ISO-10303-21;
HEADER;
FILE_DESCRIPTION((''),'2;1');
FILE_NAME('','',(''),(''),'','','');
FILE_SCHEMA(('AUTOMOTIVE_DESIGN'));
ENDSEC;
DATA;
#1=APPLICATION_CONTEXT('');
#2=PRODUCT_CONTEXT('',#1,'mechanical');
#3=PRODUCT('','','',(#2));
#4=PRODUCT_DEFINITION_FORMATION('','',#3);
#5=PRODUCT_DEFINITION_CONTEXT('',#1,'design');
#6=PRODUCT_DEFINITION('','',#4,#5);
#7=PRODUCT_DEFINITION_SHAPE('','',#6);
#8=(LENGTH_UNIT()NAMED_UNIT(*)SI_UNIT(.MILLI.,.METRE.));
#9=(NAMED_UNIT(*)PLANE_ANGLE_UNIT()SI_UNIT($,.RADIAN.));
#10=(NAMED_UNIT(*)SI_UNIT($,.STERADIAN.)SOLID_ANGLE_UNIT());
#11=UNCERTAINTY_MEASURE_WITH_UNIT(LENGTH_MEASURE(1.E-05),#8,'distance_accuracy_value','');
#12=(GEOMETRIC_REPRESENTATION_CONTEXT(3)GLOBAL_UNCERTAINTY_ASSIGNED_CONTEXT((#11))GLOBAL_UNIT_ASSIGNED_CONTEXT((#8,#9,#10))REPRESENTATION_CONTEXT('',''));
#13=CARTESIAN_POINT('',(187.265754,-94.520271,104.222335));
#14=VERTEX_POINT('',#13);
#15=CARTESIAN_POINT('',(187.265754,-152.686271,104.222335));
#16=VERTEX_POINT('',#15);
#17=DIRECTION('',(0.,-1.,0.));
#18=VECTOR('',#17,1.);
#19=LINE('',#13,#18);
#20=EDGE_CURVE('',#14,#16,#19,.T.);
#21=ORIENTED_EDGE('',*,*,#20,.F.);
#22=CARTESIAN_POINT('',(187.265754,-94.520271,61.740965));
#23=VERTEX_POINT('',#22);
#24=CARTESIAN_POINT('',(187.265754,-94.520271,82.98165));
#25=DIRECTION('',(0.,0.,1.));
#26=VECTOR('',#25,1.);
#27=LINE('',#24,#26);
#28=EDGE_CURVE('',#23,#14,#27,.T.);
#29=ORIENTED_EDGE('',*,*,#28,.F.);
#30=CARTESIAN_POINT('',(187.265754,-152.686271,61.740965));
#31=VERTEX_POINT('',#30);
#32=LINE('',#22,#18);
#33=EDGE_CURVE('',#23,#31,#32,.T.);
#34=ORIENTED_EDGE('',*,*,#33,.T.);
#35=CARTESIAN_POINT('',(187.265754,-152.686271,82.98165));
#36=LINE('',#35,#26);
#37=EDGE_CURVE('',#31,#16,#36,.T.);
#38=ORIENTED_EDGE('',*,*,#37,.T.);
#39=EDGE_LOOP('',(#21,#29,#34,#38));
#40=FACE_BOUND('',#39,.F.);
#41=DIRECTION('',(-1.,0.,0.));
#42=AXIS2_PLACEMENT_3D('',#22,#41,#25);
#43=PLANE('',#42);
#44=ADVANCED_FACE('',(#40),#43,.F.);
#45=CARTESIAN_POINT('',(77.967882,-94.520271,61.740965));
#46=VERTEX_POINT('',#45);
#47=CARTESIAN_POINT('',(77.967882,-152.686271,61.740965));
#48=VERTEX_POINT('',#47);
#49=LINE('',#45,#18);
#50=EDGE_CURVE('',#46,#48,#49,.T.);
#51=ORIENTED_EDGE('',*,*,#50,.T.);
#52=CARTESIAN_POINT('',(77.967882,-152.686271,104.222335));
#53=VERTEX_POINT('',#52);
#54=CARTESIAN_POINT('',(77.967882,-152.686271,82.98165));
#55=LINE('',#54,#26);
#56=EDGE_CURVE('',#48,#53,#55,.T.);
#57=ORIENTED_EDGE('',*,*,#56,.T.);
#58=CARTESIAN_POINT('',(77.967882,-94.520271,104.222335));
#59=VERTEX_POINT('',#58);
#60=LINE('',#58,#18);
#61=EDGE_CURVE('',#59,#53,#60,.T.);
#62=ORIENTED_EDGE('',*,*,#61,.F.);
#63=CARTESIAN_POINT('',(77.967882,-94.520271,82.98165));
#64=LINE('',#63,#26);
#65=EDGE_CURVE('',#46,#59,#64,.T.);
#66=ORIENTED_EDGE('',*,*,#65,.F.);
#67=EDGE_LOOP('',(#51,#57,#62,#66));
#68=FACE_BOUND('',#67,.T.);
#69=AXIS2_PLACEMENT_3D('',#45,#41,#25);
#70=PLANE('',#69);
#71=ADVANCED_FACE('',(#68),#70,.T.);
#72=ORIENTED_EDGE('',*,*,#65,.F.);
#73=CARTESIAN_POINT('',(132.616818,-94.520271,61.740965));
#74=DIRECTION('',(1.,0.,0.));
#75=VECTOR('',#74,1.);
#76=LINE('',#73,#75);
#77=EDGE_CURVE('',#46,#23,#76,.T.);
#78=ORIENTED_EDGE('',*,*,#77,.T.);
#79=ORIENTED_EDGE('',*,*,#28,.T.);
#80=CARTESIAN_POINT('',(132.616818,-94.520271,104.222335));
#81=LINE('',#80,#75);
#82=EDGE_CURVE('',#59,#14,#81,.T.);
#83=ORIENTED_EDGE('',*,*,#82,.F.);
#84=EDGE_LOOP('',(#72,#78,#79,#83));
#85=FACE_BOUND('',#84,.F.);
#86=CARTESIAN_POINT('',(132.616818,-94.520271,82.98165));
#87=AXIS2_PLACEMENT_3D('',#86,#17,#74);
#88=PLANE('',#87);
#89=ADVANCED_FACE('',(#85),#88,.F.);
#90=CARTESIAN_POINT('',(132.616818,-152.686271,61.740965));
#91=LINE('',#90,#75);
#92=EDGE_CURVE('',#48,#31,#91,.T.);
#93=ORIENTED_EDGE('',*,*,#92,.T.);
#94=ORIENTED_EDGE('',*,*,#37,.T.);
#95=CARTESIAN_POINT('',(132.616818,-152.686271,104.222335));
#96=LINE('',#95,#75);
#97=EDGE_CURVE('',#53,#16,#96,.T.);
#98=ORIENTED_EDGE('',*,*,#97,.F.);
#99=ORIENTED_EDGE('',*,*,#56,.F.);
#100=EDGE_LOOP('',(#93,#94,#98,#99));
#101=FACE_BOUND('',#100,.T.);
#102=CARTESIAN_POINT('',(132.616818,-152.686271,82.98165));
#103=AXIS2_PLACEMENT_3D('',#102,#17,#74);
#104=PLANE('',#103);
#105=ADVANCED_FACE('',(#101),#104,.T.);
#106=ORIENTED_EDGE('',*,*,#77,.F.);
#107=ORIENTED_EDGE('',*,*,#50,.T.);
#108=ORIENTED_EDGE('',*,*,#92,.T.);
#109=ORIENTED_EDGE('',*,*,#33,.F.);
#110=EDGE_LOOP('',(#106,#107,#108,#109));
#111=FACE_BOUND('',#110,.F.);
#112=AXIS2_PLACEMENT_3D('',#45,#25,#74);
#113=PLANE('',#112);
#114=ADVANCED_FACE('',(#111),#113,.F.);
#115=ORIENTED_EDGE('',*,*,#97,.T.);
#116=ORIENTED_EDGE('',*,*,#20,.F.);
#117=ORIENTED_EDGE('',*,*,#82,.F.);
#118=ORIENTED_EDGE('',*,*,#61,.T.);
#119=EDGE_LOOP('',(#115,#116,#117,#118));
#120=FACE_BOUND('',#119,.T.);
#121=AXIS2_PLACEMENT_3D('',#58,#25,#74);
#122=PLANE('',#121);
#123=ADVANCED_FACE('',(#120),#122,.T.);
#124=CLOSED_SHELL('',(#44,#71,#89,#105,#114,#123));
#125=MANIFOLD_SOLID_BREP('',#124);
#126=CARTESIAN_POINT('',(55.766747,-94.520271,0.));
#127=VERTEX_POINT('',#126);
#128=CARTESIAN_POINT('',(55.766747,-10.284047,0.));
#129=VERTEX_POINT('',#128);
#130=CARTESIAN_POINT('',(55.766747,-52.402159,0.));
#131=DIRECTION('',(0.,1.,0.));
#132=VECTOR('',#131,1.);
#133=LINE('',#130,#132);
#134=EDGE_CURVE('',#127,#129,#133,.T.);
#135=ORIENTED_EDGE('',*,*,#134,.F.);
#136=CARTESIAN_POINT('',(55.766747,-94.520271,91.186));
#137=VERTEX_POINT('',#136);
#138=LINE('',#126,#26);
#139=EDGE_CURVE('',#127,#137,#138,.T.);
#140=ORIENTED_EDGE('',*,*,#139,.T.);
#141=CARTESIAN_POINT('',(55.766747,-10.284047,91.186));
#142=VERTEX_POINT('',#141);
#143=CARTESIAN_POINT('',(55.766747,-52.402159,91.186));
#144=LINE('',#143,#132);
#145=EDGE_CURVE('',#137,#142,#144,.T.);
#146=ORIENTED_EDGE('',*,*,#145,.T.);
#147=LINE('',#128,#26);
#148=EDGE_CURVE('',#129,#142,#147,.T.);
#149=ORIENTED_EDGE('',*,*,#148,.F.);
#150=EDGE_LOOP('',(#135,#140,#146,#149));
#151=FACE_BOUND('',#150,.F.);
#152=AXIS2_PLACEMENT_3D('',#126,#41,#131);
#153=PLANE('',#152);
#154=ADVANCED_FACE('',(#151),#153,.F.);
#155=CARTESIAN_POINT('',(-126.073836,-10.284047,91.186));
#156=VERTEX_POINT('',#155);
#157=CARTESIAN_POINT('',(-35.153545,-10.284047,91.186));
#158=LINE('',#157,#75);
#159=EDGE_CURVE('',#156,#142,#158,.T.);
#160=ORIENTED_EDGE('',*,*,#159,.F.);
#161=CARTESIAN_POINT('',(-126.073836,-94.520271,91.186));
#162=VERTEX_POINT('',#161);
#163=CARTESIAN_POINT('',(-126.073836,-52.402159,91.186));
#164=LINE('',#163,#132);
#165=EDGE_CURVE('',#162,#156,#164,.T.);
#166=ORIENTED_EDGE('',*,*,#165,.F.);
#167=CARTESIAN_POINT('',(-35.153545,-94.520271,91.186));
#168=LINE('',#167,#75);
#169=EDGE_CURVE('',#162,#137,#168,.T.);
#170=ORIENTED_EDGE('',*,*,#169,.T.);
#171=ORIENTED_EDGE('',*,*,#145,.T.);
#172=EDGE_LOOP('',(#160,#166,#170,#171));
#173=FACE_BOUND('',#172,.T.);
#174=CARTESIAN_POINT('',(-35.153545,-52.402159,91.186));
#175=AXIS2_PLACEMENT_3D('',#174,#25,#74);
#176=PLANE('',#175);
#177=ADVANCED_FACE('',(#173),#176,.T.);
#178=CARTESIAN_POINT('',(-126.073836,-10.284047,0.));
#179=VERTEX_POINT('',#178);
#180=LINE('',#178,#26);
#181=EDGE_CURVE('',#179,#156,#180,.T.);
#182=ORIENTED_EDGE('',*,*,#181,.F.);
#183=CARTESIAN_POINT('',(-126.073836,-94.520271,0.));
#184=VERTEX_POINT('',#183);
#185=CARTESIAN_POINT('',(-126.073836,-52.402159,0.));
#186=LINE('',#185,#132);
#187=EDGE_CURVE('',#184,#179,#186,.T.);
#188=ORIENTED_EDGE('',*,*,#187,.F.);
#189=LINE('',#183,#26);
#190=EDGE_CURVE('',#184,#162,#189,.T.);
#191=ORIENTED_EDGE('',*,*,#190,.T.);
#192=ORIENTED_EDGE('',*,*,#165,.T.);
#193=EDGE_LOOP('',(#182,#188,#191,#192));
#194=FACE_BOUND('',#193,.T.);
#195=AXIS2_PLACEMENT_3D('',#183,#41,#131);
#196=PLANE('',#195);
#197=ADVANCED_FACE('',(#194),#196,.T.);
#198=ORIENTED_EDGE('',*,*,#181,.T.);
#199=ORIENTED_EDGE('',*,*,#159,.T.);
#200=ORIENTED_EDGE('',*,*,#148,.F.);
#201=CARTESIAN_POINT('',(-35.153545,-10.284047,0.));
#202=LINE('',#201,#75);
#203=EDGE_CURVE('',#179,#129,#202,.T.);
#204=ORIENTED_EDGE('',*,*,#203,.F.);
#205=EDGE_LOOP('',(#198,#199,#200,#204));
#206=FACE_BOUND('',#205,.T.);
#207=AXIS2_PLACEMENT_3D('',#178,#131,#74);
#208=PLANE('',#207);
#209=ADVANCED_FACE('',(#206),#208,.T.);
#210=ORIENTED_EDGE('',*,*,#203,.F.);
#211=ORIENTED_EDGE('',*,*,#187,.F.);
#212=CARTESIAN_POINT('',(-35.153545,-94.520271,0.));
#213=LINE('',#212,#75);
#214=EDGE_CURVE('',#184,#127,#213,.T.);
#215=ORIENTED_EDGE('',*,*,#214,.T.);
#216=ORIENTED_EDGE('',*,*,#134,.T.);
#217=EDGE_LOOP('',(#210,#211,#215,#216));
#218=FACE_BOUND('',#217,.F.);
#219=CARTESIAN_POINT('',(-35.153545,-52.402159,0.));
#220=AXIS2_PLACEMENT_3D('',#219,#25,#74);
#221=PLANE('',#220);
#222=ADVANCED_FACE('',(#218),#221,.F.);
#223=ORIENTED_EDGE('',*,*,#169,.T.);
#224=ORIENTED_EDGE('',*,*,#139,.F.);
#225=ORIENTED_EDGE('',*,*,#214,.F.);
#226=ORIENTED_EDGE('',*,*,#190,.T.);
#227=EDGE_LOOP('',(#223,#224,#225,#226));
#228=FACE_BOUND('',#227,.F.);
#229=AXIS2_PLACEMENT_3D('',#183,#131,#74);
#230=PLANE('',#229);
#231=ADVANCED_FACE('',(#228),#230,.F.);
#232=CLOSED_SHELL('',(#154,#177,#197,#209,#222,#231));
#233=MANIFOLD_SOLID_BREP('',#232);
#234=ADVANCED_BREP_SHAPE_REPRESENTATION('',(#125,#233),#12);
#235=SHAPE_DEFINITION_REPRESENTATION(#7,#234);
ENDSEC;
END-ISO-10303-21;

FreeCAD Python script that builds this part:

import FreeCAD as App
import Part
import Sketcher
Q = App.Units.Quantity


def add_polygon(sketch, points):
    """Adds a closed chain of lines whose ends are joined by coincident constraints."""
    first, n = sketch.GeometryCount, len(points)
    for a, b in zip(points, points[1:] + points[:1]):
        sketch.addGeometry(Part.LineSegment(App.Vector(*a, 0), App.Vector(*b, 0)), False)
    for i in range(n):
        sketch.addConstraint(Sketcher.Constraint("Coincident", first + i, 2, first + (i + 1) % n, 1))

doc = App.newDocument("Part")
body = doc.addObject("PartDesign::Body", "Body")

# Sketch on XY plane
sketch1 = body.newObject("Sketcher::SketchObject", "Sketch")
sketch1.AttachmentSupport = (doc.getObject("XY_Plane"), [""])
sketch1.MapMode = "FlatFace"
add_polygon(sketch1, [(-126, -10), (-126, -95), (56, -95), (56, -10)])  # lines 0-3
sketch1.addConstraint([
    Sketcher.Constraint("Vertical", 0),
    Sketcher.Constraint("Horizontal", 1),
    Sketcher.Constraint("Vertical", 2),
    Sketcher.Constraint("Horizontal", 3),
    Sketcher.Constraint("DistanceX", 1, 1, 1, 2, Q("181.840583 mm")),
    Sketcher.Constraint("DistanceY", 0, 2, 0, 1, Q("84.236224 mm")),
    Sketcher.Constraint("DistanceY", 0, 2, -1, 1, Q("94.520271 mm")),
    Sketcher.Constraint("DistanceX", 0, 2, -1, 1, Q("126.073836 mm")),
])
pad1 = body.newObject("PartDesign::Pad", "Pad")
pad1.Profile = sketch1
pad1.Length = Q("3.59 in")
body2 = doc.addObject("PartDesign::Body", "Body001")

# Sketch on XZ plane
sketch2 = body2.newObject("Sketcher::SketchObject", "Sketch001")
sketch2.AttachmentSupport = (doc.getObject("XZ_Plane001"), [""])
sketch2.MapMode = "FlatFace"
sketch2.AttachmentOffset = App.Placement(App.Vector(0, 0, 94.520271), App.Rotation())
add_polygon(sketch2, [(78, 104), (78, 62), (187, 62), (187, 104)])  # lines 0-3
sketch2.addConstraint([
    Sketcher.Constraint("Vertical", 0),
    Sketcher.Constraint("Horizontal", 1),
    Sketcher.Constraint("Vertical", 2),
    Sketcher.Constraint("Horizontal", 3),
    Sketcher.Constraint("DistanceX", 1, 1, 1, 2, Q("109.297872 mm")),
    Sketcher.Constraint("DistanceY", 0, 2, 0, 1, Q("42.48137 mm")),
    Sketcher.Constraint("DistanceX", -1, 1, 0, 2, Q("77.967882 mm")),
    Sketcher.Constraint("DistanceY", -1, 1, 0, 2, Q("61.740965 mm")),
])
pad2 = body2.newObject("PartDesign::Pad", "Pad001")
pad2.Profile = sketch2
pad2.Length = Q("2.29 in")

doc.recompute()
